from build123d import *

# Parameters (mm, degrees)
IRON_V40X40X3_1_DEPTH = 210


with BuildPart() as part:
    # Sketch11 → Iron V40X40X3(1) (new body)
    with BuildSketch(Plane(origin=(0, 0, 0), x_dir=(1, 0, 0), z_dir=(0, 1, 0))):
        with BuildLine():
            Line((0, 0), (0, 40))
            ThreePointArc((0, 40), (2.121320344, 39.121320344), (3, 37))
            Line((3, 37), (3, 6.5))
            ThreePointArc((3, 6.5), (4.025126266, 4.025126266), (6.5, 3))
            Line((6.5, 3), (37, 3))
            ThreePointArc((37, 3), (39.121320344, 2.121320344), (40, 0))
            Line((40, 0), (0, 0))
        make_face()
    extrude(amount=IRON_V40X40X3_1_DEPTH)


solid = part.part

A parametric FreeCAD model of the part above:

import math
import FreeCAD as App
import Part
import Sketcher
Q = App.Units.Quantity

doc = App.newDocument("Part")
body = doc.addObject("PartDesign::Body", "Body")

sketch1 = body.newObject("Sketcher::SketchObject", "Sketch")
sketch1.AttachmentSupport = (doc.getObject("XZ_Plane"), [""])
sketch1.MapMode = "FlatFace"
sketch1.addGeometry(Part.LineSegment(App.Vector(0, -40, 0), App.Vector(0, 0, 0)), False)
sketch1.addGeometry(Part.LineSegment(App.Vector(0, 0, 0), App.Vector(40, 0, 0)), False)
sketch1.addGeometry(Part.ArcOfCircle(Part.Circle(App.Vector(37, 0, 0), App.Vector(0, 0, 1), 3), math.radians(-90), math.radians(0)), False)
sketch1.addGeometry(Part.LineSegment(App.Vector(37, -3, 0), App.Vector(6.5, -3, 0)), False)
sketch1.addGeometry(Part.ArcOfCircle(Part.Circle(App.Vector(6.5, -6.5, 0), App.Vector(0, 0, 1), 3.5), math.radians(90), math.radians(180)), False)
sketch1.addGeometry(Part.LineSegment(App.Vector(3, -6.5, 0), App.Vector(3, -37, 0)), False)
sketch1.addGeometry(Part.ArcOfCircle(Part.Circle(App.Vector(0, -37, 0), App.Vector(0, 0, 1), 3), math.radians(-90), math.radians(0)), False)
sketch1.addConstraint(Sketcher.Constraint("Coincident", 0, 2, 1, 1))
sketch1.addConstraint(Sketcher.Constraint("Coincident", 1, 2, 2, 2))
sketch1.addConstraint(Sketcher.Constraint("Tangent", 2, 1, 3, 1))
sketch1.addConstraint(Sketcher.Constraint("Tangent", 3, 2, 4, 1))
sketch1.addConstraint(Sketcher.Constraint("Tangent", 4, 2, 5, 1))
sketch1.addConstraint(Sketcher.Constraint("Tangent", 5, 2, 6, 2))
sketch1.addConstraint(Sketcher.Constraint("Coincident", 6, 1, 0, 1))
sketch1.addConstraint(Sketcher.Constraint("Vertical", 0))
sketch1.addConstraint(Sketcher.Constraint("Horizontal", 1))
sketch1.addConstraint(Sketcher.Constraint("Horizontal", 3))
sketch1.addConstraint(Sketcher.Constraint("Vertical", 5))
sketch1.addConstraint(Sketcher.Constraint("Coincident", 0, 2, -1, 1))
sketch1.addConstraint(Sketcher.Constraint("Equal", 2, 6))
sketch1.addConstraint(Sketcher.Constraint("PointOnObject", 2, 3, -1))
sketch1.addConstraint(Sketcher.Constraint("PointOnObject", 6, 3, -2))
sketch1.addConstraint(Sketcher.Constraint("Equal", 1, 0))
sketch1.addConstraint(Sketcher.Constraint("Radius", 2, Q("3 mm")))
sketch1.addConstraint(Sketcher.Constraint("Radius", 4, Q("3.5 mm")))
sketch1.addConstraint(Sketcher.Constraint("DistanceX", 1, 1, 1, 2, Q("40 mm")))
pad1 = body.newObject("PartDesign::Pad", "Pad")
pad1.Profile = sketch1
pad1.Length = 210
pad1.Reversed = True

doc.recompute()
